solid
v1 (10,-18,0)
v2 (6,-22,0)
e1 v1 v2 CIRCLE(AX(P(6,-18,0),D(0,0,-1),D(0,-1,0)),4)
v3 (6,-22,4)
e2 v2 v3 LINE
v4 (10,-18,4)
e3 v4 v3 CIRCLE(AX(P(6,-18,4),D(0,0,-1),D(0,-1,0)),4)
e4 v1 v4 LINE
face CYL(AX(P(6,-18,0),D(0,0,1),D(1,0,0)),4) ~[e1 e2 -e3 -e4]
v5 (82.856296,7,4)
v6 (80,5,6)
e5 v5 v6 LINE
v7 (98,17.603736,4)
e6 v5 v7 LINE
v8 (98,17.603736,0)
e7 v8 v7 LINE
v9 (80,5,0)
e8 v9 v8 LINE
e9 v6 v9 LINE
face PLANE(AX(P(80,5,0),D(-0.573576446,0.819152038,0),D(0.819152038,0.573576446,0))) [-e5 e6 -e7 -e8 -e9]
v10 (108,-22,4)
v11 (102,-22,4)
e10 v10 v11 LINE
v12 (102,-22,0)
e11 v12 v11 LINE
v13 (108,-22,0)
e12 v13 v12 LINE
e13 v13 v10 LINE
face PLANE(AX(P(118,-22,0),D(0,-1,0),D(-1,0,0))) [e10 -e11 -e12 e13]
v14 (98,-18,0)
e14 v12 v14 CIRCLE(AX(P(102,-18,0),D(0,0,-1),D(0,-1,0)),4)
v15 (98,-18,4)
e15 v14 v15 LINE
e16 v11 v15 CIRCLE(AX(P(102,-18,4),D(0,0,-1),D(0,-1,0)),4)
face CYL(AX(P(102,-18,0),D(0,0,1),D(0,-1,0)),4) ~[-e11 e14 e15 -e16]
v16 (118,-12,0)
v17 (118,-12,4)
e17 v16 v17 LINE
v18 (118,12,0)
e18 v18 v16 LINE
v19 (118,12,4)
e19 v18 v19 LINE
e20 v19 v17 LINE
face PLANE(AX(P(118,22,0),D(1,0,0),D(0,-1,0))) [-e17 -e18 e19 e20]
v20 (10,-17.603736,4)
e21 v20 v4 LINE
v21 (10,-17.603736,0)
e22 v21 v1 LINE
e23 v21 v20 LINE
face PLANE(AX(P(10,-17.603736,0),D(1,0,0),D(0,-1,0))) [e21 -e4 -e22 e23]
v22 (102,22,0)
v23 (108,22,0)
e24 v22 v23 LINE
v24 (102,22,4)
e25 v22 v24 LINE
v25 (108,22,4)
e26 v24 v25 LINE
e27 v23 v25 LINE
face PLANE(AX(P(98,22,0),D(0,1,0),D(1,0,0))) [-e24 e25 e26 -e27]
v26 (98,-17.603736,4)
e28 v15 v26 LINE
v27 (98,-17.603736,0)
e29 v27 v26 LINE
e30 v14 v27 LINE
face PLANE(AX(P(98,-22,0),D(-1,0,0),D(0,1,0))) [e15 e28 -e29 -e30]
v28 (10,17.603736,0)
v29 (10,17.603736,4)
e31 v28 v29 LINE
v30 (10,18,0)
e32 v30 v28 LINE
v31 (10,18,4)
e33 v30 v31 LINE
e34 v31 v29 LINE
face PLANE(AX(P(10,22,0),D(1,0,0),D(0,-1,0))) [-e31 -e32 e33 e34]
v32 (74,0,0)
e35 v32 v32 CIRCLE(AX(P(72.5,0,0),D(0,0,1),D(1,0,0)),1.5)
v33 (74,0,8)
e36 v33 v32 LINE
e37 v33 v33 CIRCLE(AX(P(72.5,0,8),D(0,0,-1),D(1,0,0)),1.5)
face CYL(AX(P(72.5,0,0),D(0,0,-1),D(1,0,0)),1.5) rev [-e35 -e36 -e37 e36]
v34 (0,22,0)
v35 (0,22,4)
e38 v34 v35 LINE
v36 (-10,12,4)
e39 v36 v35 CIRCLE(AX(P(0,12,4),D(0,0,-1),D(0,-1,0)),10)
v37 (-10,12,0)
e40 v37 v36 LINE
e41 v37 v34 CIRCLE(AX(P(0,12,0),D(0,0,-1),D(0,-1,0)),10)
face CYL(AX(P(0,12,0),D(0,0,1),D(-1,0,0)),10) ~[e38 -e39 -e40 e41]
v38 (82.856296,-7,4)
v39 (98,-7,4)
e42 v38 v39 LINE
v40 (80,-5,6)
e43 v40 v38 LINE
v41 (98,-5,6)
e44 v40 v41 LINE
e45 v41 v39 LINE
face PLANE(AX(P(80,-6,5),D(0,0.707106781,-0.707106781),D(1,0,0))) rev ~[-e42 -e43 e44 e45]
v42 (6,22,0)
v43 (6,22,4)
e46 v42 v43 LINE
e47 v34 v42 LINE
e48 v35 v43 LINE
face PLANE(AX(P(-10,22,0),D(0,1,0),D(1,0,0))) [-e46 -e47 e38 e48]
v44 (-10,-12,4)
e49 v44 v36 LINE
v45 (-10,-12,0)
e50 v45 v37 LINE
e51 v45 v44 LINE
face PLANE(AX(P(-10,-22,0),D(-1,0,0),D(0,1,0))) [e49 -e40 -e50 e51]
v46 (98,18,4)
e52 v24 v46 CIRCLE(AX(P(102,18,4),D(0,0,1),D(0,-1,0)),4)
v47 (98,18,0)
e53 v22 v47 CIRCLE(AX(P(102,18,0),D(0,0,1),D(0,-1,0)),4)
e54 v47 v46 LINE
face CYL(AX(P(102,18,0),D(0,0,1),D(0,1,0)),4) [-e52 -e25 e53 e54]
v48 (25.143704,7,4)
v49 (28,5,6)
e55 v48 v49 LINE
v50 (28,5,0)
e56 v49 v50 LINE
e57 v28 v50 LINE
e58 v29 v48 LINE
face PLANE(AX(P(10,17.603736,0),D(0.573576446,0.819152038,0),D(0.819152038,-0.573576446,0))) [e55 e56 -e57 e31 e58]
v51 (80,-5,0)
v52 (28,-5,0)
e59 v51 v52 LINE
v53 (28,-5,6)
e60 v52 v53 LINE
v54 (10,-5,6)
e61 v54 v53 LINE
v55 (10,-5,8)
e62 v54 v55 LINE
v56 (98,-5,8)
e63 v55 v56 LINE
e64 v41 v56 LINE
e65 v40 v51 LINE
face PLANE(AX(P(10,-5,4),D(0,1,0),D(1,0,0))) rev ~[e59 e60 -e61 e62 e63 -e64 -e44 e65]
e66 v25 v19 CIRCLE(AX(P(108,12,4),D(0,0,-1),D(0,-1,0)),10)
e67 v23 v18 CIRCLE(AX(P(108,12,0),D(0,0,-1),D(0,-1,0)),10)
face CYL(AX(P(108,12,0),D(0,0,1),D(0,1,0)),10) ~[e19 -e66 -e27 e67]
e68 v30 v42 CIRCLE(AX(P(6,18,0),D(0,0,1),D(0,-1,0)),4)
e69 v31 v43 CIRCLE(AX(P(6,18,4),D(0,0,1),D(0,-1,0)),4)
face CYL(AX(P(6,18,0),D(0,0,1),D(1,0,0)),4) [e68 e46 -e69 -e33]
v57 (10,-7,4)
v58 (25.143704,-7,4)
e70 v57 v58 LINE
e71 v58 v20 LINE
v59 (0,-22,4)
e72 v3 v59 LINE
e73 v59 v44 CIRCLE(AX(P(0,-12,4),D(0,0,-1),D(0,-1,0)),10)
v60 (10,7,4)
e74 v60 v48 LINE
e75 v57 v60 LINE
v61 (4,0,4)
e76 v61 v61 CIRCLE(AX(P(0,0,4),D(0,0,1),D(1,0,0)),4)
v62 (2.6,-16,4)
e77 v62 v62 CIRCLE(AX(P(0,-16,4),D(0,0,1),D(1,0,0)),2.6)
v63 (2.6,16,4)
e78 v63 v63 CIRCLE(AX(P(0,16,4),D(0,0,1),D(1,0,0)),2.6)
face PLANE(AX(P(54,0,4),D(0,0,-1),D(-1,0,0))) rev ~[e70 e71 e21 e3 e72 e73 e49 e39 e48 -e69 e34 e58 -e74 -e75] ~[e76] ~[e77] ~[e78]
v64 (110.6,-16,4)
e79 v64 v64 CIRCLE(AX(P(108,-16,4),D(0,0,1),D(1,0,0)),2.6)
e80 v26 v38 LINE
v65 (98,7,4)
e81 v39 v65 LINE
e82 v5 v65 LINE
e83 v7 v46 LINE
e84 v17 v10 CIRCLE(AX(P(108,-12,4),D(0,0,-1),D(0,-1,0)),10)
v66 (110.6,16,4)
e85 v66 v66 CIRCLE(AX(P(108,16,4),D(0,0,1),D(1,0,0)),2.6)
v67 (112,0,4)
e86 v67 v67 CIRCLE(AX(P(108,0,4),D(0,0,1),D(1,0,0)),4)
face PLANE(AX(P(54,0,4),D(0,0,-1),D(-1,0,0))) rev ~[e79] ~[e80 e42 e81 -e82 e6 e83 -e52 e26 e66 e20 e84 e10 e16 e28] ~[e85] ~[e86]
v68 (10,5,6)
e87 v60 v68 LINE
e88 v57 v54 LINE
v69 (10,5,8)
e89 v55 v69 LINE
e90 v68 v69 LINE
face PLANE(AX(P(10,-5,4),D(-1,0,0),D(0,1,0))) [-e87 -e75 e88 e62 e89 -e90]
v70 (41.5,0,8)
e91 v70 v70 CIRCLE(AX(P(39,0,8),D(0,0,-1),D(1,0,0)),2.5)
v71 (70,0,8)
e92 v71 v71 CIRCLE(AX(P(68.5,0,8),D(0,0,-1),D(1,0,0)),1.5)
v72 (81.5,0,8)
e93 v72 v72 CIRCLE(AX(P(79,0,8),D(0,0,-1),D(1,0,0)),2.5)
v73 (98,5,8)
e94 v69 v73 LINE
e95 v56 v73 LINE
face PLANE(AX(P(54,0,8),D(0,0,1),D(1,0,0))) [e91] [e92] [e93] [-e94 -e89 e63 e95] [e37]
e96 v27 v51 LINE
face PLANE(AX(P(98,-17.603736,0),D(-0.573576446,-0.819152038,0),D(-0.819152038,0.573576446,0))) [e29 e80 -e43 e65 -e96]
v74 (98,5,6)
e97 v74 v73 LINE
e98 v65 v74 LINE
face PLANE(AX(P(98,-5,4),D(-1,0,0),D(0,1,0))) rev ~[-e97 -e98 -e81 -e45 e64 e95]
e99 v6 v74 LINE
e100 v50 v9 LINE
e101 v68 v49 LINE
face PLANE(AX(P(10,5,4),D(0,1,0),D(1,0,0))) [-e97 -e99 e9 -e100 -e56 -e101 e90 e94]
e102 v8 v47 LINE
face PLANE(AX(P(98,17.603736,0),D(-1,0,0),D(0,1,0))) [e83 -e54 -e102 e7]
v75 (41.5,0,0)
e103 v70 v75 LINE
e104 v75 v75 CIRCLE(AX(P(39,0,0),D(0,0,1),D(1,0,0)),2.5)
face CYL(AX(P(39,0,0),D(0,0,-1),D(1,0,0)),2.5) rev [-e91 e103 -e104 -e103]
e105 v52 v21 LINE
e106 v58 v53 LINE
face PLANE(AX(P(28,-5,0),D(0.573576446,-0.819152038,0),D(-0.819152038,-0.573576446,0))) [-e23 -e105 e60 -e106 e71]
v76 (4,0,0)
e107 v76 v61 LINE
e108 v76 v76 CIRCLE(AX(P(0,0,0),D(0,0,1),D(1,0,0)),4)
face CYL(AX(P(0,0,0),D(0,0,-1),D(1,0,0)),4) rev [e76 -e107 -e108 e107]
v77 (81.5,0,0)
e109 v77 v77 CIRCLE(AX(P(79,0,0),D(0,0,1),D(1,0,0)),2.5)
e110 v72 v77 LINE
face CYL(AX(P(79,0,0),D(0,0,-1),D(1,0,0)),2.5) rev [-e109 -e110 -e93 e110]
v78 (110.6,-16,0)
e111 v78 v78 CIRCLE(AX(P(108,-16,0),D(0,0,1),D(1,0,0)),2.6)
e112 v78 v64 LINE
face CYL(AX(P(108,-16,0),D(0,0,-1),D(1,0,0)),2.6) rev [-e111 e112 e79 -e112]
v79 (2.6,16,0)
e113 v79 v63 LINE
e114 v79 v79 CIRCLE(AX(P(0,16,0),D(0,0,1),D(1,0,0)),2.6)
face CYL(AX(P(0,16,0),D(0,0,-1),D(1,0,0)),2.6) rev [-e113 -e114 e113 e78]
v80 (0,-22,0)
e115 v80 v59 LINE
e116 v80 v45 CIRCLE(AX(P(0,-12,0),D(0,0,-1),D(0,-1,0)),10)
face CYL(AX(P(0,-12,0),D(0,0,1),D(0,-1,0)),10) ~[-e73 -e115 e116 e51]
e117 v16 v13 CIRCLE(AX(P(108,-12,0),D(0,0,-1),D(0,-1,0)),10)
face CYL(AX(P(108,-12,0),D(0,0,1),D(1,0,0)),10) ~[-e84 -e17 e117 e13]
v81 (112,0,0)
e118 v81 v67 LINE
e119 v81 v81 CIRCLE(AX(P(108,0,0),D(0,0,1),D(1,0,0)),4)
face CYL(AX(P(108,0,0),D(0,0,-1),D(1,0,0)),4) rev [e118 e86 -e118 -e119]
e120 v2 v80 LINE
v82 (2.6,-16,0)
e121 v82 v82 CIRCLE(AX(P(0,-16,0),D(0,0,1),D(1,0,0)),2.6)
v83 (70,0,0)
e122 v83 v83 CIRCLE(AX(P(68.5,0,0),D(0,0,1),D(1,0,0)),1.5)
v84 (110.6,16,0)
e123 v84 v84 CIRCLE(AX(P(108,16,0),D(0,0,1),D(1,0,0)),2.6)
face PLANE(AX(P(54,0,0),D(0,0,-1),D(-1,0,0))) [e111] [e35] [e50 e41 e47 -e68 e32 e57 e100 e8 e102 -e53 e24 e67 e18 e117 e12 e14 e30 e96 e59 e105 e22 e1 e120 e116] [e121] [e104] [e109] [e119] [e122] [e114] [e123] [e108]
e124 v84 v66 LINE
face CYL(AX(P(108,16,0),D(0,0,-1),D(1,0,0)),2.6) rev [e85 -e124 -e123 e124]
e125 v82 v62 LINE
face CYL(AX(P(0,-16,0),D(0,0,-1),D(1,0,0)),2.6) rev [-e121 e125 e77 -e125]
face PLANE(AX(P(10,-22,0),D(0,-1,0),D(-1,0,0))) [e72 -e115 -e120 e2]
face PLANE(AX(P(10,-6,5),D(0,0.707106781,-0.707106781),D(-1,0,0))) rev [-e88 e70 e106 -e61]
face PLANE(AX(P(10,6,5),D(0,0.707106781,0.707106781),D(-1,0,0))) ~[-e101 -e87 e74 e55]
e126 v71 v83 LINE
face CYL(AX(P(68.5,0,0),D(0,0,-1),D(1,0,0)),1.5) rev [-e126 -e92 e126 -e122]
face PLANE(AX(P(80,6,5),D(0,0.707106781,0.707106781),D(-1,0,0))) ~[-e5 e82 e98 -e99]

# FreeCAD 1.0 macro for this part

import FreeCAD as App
import Part
import Sketcher
from FreeCAD import Vector
Q = App.Units.Quantity


def edges_at(feature, points):
    """Names of the edges that pass closest to the given points."""
    edges = feature.Shape.Edges
    near = lambda p: min(range(len(edges)), key=lambda i: edges[i].distToShape(Part.Vertex(*p))[0])
    return sorted({f"Edge{near(p) + 1}" for p in points})

doc = App.newDocument("Part")
body = doc.addObject("PartDesign::Body", "Body")

# Sketch on XY plane
sketch1 = body.newObject("Sketcher::SketchObject", "Sketch")
sketch1.AttachmentSupport = (doc.getObject("XY_Plane"), [""])
sketch1.MapMode = "FlatFace"
sketch1.addGeometry([
    Part.LineSegment(Vector(98, 17.603736, 0), Vector(80, 5, 0)),  # 0
    Part.LineSegment(Vector(80, 5, 0), Vector(28, 5, 0)),  # 1
    Part.LineSegment(Vector(28, 5, 0), Vector(10, 17.603736, 0)),  # 2
    Part.LineSegment(Vector(10, 17.603736, 0), Vector(10, 22, 0)),  # 3
    Part.LineSegment(Vector(10, 22, 0), Vector(-10, 22, 0)),  # 4
    Part.LineSegment(Vector(-10, 22, 0), Vector(-10, -22, 0)),  # 5
    Part.LineSegment(Vector(-10, -22, 0), Vector(10, -22, 0)),  # 6
    Part.LineSegment(Vector(10, -22, 0), Vector(10, -17.603736, 0)),  # 7
    Part.LineSegment(Vector(10, -17.603736, 0), Vector(28, -5, 0)),  # 8
    Part.LineSegment(Vector(28, -5, 0), Vector(80, -5, 0)),  # 9
    Part.LineSegment(Vector(80, -5, 0), Vector(98, -17.603736, 0)),  # 10
    Part.LineSegment(Vector(98, -17.603736, 0), Vector(98, -22, 0)),  # 11
    Part.LineSegment(Vector(98, -22, 0), Vector(118, -22, 0)),  # 12
    Part.LineSegment(Vector(118, -22, 0), Vector(118, 22, 0)),  # 13
    Part.LineSegment(Vector(118, 22, 0), Vector(98, 22, 0)),  # 14
    Part.LineSegment(Vector(98, 22, 0), Vector(98, 17.603736, 0)),  # 15
    Part.Circle(Vector(108, -16, 0), Vector(0, 0, 1), 2.6),  # 16
    Part.Circle(Vector(0, -16, 0), Vector(0, 0, 1), 2.6),  # 17
    Part.Circle(Vector(108, 0, 0), Vector(0, 0, 1), 4),  # 18
    Part.Circle(Vector(79, 0, 0), Vector(0, 0, 1), 2.5),  # 19
    Part.Circle(Vector(72.5, 0, 0), Vector(0, 0, 1), 1.5),  # 20
    Part.Circle(Vector(68.5, 0, 0), Vector(0, 0, 1), 1.5),  # 21
    Part.Circle(Vector(108, 16, 0), Vector(0, 0, 1), 2.6),  # 22
    Part.Circle(Vector(39, 0, 0), Vector(0, 0, 1), 2.5),  # 23
    Part.Circle(Vector(0, 0, 0), Vector(0, 0, 1), 4),  # 24
    Part.Circle(Vector(0, 16, 0), Vector(0, 0, 1), 2.6),  # 25
], False)
sketch1.addConstraint([
    Sketcher.Constraint("Coincident", 0, 2, 1, 1),
    Sketcher.Constraint("Coincident", 1, 2, 2, 1),
    Sketcher.Constraint("Coincident", 2, 2, 3, 1),
    Sketcher.Constraint("Coincident", 3, 2, 4, 1),
    Sketcher.Constraint("Coincident", 4, 2, 5, 1),
    Sketcher.Constraint("Coincident", 5, 2, 6, 1),
    Sketcher.Constraint("Coincident", 6, 2, 7, 1),
    Sketcher.Constraint("Coincident", 7, 2, 8, 1),
    Sketcher.Constraint("Coincident", 8, 2, 9, 1),
    Sketcher.Constraint("Coincident", 9, 2, 10, 1),
    Sketcher.Constraint("Coincident", 10, 2, 11, 1),
    Sketcher.Constraint("Coincident", 11, 2, 12, 1),
    Sketcher.Constraint("Coincident", 12, 2, 13, 1),
    Sketcher.Constraint("Coincident", 13, 2, 14, 1),
    Sketcher.Constraint("Coincident", 14, 2, 15, 1),
    Sketcher.Constraint("Coincident", 15, 2, 0, 1),
    Sketcher.Constraint("Horizontal", 1),
    Sketcher.Constraint("Vertical", 3),
    Sketcher.Constraint("Horizontal", 4),
    Sketcher.Constraint("Vertical", 5),
    Sketcher.Constraint("Horizontal", 6),
    Sketcher.Constraint("Vertical", 7),
    Sketcher.Constraint("Horizontal", 9),
    Sketcher.Constraint("Vertical", 11),
    Sketcher.Constraint("Horizontal", 12),
    Sketcher.Constraint("Vertical", 13),
    Sketcher.Constraint("Horizontal", 14),
    Sketcher.Constraint("Vertical", 15),
    Sketcher.Constraint("Coincident", 24, 3, -1, 1),
    Sketcher.Constraint("Equal", 16, 17),
    Sketcher.Constraint("Equal", 20, 21),
    Sketcher.Constraint("Equal", 17, 22),
    Sketcher.Constraint("Equal", 19, 23),
    Sketcher.Constraint("Equal", 18, 24),
    Sketcher.Constraint("Equal", 22, 25),
    Sketcher.Constraint("Symmetric", 17, 3, 25, 3, -1, 1),
    Sketcher.Constraint("Symmetric", 3, 2, 5, 2, -1, 1),
    Sketcher.Constraint("Symmetric", 16, 3, 22, 3, -1),
    Sketcher.Constraint("Symmetric", 2, 2, 7, 2, -1),
    Sketcher.Constraint("Symmetric", 1, 2, 8, 2, -1),
    Sketcher.Constraint("Symmetric", 11, 2, 14, 2, -1),
    Sketcher.Constraint("PointOnObject", 17, 3, -2),
    Sketcher.Constraint("PointOnObject", 18, 3, -1),
    Sketcher.Constraint("PointOnObject", 19, 3, -1),
    Sketcher.Constraint("PointOnObject", 20, 3, -1),
    Sketcher.Constraint("PointOnObject", 21, 3, -1),
    Sketcher.Constraint("PointOnObject", 23, 3, -1),
    Sketcher.Constraint("Parallel", 0, 8),
    Sketcher.Constraint("Parallel", 2, 10),
    Sketcher.Constraint("Horizontal", 16, 3, 17, 3),
    Sketcher.Constraint("Horizontal", 7, 2, 10, 2),
    Sketcher.Constraint("Horizontal", 6, 2, 11, 2),
    Sketcher.Constraint("Horizontal", 2, 2, 15, 2),
    Sketcher.Constraint("Vertical", 16, 3, 18, 3),
    Sketcher.Constraint("Equal", 6, 12),
    Sketcher.Constraint("Diameter", 18, 8.0),
    Sketcher.Constraint("Diameter", 19, 5.0),
    Sketcher.Constraint("Diameter", 20, 3.0),
    Sketcher.Constraint("Diameter", 16, 5.2),
    Sketcher.Constraint("DistanceX", 1, 2, 1, 1, 52.0),
    Sketcher.Constraint("DistanceX", 4, 2, 4, 1, 20.0),
    Sketcher.Constraint("DistanceY", 5, 2, 5, 1, 44.0),
    Sketcher.Constraint("Angle", 0, Q("-144.999999 deg")),
    Sketcher.Constraint("DistanceX", -1, 1, 16, 3, 108.0),
    Sketcher.Constraint("DistanceY", 16, 3, -1, 1, 16.0),
    Sketcher.Constraint("DistanceX", -1, 1, 19, 3, 79.0),
    Sketcher.Constraint("DistanceX", -1, 1, 23, 3, 39.0),
    Sketcher.Constraint("DistanceX", -1, 1, 0, 2, 80.0),
    Sketcher.Constraint("DistanceY", -1, 1, 0, 2, 5.0),
    Sketcher.Constraint("DistanceX", 21, 3, 20, 3, 4.0),
    Sketcher.Constraint("DistanceX", -1, 1, 20, 3, 72.5),
])
pad1 = body.newObject("PartDesign::Pad", "Pad")
pad1.Profile = sketch1
pad1.Length = 4

# Sketch on XY plane
sketch2 = body.newObject("Sketcher::SketchObject", "Sketch001")
sketch2.AttachmentSupport = (doc.getObject("XY_Plane"), [""])
sketch2.MapMode = "FlatFace"
sketch2.AttachmentOffset = App.Placement(Vector(0, 0, 4), App.Rotation())
sketch2.addGeometry([
    Part.LineSegment(Vector(10, 5, 0), Vector(10, -5, 0)),
    Part.LineSegment(Vector(10, -5, 0), Vector(98, -5, 0)),
    Part.LineSegment(Vector(98, -5, 0), Vector(98, 5, 0)),
    Part.LineSegment(Vector(98, 5, 0), Vector(10, 5, 0)),
], False)
sketch2.addConstraint([
    Sketcher.Constraint("Coincident", 0, 2, 1, 1),
    Sketcher.Constraint("Coincident", 1, 2, 2, 1),
    Sketcher.Constraint("Coincident", 2, 2, 3, 1),
    Sketcher.Constraint("Coincident", 3, 2, 0, 1),
    Sketcher.Constraint("Vertical", 0),
    Sketcher.Constraint("Horizontal", 1),
    Sketcher.Constraint("Vertical", 2),
    Sketcher.Constraint("Horizontal", 3),
    Sketcher.Constraint("DistanceX", 1, 1, 1, 2, 88.0),
    Sketcher.Constraint("DistanceY", 0, 2, 0, 1, 10.0),
    Sketcher.Constraint("DistanceX", -1, 1, 0, 2, 10.0),
    Sketcher.Constraint("DistanceY", 0, 2, -1, 1, 5.0),
])
pad2 = body.newObject("PartDesign::Pad", "Pad001")
pad2.Profile = sketch2
pad2.Length = 4

# Sketch on XY plane
sketch3 = body.newObject("Sketcher::SketchObject", "Sketch002")
sketch3.AttachmentSupport = (doc.getObject("XY_Plane"), [""])
sketch3.MapMode = "FlatFace"
sketch3.addGeometry([
    Part.Circle(Vector(39, 0, 0), Vector(0, 0, 1), 2.5),
    Part.Circle(Vector(79, 0, 0), Vector(0, 0, 1), 2.5),
    Part.Circle(Vector(72.5, 0, 0), Vector(0, 0, 1), 1.5),
    Part.Circle(Vector(68.5, 0, 0), Vector(0, 0, 1), 1.5),
], False)
sketch3.addConstraint([
    Sketcher.Constraint("Equal", 0, 1),
    Sketcher.Constraint("Equal", 2, 3),
    Sketcher.Constraint("PointOnObject", 0, 3, -1),
    Sketcher.Constraint("PointOnObject", 1, 3, -1),
    Sketcher.Constraint("PointOnObject", 2, 3, -1),
    Sketcher.Constraint("PointOnObject", 3, 3, -1),
    Sketcher.Constraint("Diameter", 0, 5.0),
    Sketcher.Constraint("Diameter", 2, 3.0),
    Sketcher.Constraint("DistanceX", -1, 1, 0, 3, 39.0),
    Sketcher.Constraint("DistanceX", -1, 1, 1, 3, 79.0),
    Sketcher.Constraint("DistanceX", 3, 3, 2, 3, 4.0),
    Sketcher.Constraint("DistanceX", -1, 1, 2, 3, 72.5),
])
pocket1 = body.newObject("PartDesign::Pocket", "Pocket")
pocket1.Profile = sketch3
pocket1.Type = "ThroughAll"
pocket1.Reversed = True
doc.recompute()

fillet = body.newObject("PartDesign::Fillet", "Fillet")
fillet.Base = (pocket1, edges_at(pocket1, [(-10, -22, 2), (-10, 22, 2)]))
fillet.Radius = 10
doc.recompute()

fillet2 = body.newObject("PartDesign::Fillet", "Fillet001")
fillet2.Base = (fillet, edges_at(fillet, [(118, 22, 2), (118, -22, 2)]))
fillet2.Radius = 10
doc.recompute()

fillet3 = body.newObject("PartDesign::Fillet", "Fillet002")
fillet3.Base = (fillet2, edges_at(fillet2, [(10, 22, 2), (98, 22, 2)]))
fillet3.Radius = 4
doc.recompute()

fillet4 = body.newObject("PartDesign::Fillet", "Fillet003")
fillet4.Base = (fillet3, edges_at(fillet3, [(10, -22, 2), (98, -22, 2)]))
fillet4.Radius = 4
doc.recompute()

chamfer = body.newObject("PartDesign::Chamfer", "Chamfer")
chamfer.Base = (fillet4, edges_at(fillet4, [(89, -5, 4)]))
chamfer.Size = 2
doc.recompute()

chamfer2 = body.newObject("PartDesign::Chamfer", "Chamfer001")
chamfer2.Base = (chamfer, edges_at(chamfer, [(19, -5, 4)]))
chamfer2.Size = 2
doc.recompute()

chamfer3 = body.newObject("PartDesign::Chamfer", "Chamfer002")
chamfer3.Base = (chamfer2, edges_at(chamfer2, [(19, 5, 4), (89, 5, 4)]))
chamfer3.Size = 2

doc.recompute()
